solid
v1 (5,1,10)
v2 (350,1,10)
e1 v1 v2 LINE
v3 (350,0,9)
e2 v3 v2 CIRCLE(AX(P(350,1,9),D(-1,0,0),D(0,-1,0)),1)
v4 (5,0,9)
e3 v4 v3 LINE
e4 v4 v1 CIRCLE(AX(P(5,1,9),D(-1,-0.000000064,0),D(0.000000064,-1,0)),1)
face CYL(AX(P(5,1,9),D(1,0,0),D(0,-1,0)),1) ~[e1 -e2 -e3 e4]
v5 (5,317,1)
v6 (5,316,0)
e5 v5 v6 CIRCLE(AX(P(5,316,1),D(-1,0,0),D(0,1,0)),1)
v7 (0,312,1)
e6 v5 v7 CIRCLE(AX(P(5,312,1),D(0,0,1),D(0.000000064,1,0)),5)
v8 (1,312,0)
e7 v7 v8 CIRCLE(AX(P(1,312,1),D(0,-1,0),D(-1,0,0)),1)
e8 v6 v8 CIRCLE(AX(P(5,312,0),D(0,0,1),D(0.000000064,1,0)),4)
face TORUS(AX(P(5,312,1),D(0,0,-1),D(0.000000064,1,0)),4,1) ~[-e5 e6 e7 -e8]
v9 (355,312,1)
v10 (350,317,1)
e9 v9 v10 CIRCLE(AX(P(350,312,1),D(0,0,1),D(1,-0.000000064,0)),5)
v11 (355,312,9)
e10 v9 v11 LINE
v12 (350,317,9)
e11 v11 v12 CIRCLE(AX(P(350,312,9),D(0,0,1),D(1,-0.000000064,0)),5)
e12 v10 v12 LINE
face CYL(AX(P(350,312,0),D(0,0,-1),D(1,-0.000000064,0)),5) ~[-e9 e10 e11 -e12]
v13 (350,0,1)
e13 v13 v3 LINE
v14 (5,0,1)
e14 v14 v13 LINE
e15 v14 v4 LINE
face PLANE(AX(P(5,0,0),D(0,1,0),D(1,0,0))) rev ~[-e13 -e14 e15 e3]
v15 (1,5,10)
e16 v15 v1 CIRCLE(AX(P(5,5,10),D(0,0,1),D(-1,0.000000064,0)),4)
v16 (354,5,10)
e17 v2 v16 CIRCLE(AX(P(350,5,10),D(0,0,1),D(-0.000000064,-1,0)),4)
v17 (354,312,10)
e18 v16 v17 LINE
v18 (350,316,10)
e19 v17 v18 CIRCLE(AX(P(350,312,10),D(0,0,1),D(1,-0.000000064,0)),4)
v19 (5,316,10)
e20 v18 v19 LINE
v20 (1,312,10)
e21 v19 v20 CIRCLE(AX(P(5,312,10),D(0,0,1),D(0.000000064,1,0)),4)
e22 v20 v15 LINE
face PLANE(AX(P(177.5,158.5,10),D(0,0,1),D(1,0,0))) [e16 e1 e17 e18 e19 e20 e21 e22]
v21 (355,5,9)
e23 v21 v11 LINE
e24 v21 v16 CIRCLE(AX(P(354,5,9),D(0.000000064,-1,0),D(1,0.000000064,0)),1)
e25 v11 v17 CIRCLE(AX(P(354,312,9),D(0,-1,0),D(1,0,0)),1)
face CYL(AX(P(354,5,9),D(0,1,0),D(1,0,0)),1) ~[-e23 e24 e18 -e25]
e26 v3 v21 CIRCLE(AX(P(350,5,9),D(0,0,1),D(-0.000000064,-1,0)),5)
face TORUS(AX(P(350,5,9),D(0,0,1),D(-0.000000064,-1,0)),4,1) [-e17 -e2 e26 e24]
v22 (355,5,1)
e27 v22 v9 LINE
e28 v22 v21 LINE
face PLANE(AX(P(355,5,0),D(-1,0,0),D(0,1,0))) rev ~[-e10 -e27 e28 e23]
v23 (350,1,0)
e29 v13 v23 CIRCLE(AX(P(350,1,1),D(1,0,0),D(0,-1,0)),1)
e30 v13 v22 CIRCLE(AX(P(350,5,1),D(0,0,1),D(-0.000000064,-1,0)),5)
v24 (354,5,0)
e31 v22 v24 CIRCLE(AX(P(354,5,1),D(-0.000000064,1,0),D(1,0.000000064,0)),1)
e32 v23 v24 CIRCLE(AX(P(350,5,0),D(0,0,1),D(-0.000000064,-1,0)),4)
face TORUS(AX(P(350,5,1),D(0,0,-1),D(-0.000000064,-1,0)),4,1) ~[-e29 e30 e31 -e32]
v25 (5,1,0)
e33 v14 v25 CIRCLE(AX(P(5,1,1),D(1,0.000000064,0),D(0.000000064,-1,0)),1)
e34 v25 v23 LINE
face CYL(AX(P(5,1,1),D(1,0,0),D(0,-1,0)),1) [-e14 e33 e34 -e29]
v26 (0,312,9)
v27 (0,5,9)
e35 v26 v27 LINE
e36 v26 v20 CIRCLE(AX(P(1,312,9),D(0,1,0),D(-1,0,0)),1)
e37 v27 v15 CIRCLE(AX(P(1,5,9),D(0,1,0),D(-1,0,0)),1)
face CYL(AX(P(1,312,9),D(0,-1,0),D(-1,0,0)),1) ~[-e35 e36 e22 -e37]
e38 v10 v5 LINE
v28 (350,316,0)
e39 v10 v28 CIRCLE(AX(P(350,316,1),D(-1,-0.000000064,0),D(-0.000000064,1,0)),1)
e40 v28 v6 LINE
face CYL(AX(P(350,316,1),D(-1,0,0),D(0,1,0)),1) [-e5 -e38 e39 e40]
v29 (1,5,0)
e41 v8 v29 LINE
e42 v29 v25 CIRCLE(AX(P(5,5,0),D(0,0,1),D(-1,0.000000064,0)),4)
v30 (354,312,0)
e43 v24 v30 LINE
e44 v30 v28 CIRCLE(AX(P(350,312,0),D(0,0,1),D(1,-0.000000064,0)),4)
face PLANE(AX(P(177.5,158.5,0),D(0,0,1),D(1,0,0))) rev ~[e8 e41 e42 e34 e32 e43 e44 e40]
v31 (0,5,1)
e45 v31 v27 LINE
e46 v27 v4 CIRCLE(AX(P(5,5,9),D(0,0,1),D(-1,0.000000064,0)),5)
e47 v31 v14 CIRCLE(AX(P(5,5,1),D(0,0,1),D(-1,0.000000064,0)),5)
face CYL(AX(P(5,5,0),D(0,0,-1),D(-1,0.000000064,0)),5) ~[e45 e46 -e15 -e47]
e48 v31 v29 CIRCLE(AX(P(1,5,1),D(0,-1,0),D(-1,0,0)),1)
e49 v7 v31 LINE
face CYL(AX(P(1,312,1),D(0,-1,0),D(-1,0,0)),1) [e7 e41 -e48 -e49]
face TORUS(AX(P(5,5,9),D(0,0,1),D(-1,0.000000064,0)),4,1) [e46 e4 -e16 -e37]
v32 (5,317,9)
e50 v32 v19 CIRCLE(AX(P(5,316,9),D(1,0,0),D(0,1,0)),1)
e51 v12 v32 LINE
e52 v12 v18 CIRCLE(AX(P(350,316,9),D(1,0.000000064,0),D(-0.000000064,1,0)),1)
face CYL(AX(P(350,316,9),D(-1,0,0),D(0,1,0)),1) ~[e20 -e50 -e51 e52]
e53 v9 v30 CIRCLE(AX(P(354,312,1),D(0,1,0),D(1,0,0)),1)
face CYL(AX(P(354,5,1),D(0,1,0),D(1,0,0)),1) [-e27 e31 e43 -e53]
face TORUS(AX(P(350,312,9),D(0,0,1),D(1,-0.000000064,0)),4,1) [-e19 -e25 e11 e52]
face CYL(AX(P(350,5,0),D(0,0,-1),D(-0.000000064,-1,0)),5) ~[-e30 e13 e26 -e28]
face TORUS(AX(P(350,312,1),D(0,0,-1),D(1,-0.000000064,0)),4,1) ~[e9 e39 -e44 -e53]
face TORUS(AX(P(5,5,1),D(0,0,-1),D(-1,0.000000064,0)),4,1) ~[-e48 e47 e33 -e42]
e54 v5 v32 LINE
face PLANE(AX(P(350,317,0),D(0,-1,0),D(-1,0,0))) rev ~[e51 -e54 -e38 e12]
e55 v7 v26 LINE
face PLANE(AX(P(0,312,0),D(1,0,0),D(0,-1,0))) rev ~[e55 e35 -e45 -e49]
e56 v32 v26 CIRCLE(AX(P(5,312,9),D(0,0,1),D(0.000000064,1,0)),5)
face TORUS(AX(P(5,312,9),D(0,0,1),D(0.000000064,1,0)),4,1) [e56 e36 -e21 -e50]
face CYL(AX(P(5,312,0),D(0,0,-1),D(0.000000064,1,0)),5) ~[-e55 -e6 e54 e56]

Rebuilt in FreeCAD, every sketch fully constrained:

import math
import FreeCAD as App
import Part
import Sketcher
Q = App.Units.Quantity


def edges_at(feature, points):
    """Names of the edges that pass closest to the given points."""
    edges = feature.Shape.Edges
    near = lambda p: min(range(len(edges)), key=lambda i: edges[i].distToShape(Part.Vertex(*p))[0])
    return sorted({f"Edge{near(p) + 1}" for p in points})

doc = App.newDocument("Part")
params = doc.addObject("Spreadsheet::Sheet", "Params")
for row, (alias, value) in enumerate([
    ("sketch1_radius", "5 mm"),
    ("sketch1_width", "345 mm"),
    ("sketch1_height", "307 mm"),
    ("pad1_length", "10 mm"),
    ("fillet_radius", "1 mm"),
], start=1):
    params.set(f"A{row}", alias)
    params.set(f"B{row}", "=" + value)
    params.setAlias(f"B{row}", alias)

body = doc.addObject("PartDesign::Body", "Body")

# Sketch on XY plane
sketch1 = body.newObject("Sketcher::SketchObject", "Sketch")
sketch1.AttachmentSupport = (doc.getObject("XY_Plane"), [""])
sketch1.MapMode = "FlatFace"
sketch1.addGeometry(Part.ArcOfCircle(Part.Circle(App.Vector(5, 5, 0), App.Vector(0, 0, 1), 5), math.radians(179.999996), math.radians(270.000004)), False)
sketch1.addGeometry(Part.LineSegment(App.Vector(5, 0, 0), App.Vector(350, 0, 0)), False)
sketch1.addGeometry(Part.ArcOfCircle(Part.Circle(App.Vector(350, 5, 0), App.Vector(0, 0, 1), 5), math.radians(-90.000004), math.radians(0.000004)), False)
sketch1.addGeometry(Part.LineSegment(App.Vector(355, 5, 0), App.Vector(355, 312, 0)), False)
sketch1.addGeometry(Part.ArcOfCircle(Part.Circle(App.Vector(350, 312, 0), App.Vector(0, 0, 1), 5), math.radians(-0.000004), math.radians(90.000004)), False)
sketch1.addGeometry(Part.LineSegment(App.Vector(350, 317, 0), App.Vector(5, 317, 0)), False)
sketch1.addGeometry(Part.ArcOfCircle(Part.Circle(App.Vector(5, 312, 0), App.Vector(0, 0, 1), 5), math.radians(89.999996), math.radians(180.000004)), False)
sketch1.addGeometry(Part.LineSegment(App.Vector(0, 312, 0), App.Vector(0, 5, 0)), False)
sketch1.addConstraint(Sketcher.Constraint("Tangent", 0, 2, 1, 1))
sketch1.addConstraint(Sketcher.Constraint("Tangent", 1, 2, 2, 1))
sketch1.addConstraint(Sketcher.Constraint("Tangent", 2, 2, 3, 1))
sketch1.addConstraint(Sketcher.Constraint("Tangent", 3, 2, 4, 1))
sketch1.addConstraint(Sketcher.Constraint("Tangent", 4, 2, 5, 1))
sketch1.addConstraint(Sketcher.Constraint("Tangent", 5, 2, 6, 1))
sketch1.addConstraint(Sketcher.Constraint("Tangent", 6, 2, 7, 1))
sketch1.addConstraint(Sketcher.Constraint("Tangent", 7, 2, 0, 1))
sketch1.addConstraint(Sketcher.Constraint("Horizontal", 1))
sketch1.addConstraint(Sketcher.Constraint("Vertical", 3))
sketch1.addConstraint(Sketcher.Constraint("Horizontal", 5))
sketch1.addConstraint(Sketcher.Constraint("Vertical", 7))
sketch1.addConstraint(Sketcher.Constraint("Equal", 0, 2))
sketch1.addConstraint(Sketcher.Constraint("Equal", 2, 4))
sketch1.addConstraint(Sketcher.Constraint("Equal", 4, 6))
sketch1.addConstraint(Sketcher.Constraint("PointOnObject", 0, 2, -1))
sketch1.addConstraint(Sketcher.Constraint("PointOnObject", 6, 2, -2))
sketch1.addConstraint(Sketcher.Constraint("Radius", 0, Q("5 mm")))
sketch1.addConstraint(Sketcher.Constraint("DistanceX", 1, 1, 1, 2, Q("345 mm")))
sketch1.addConstraint(Sketcher.Constraint("DistanceY", 3, 1, 3, 2, Q("307 mm")))
sketch1.setExpression("Constraints[17]", "Params.sketch1_radius")
sketch1.setExpression("Constraints[18]", "Params.sketch1_width")
sketch1.setExpression("Constraints[19]", "Params.sketch1_height")
pad1 = body.newObject("PartDesign::Pad", "Pad")
pad1.Profile = sketch1
pad1.setExpression("Length", "Params.pad1_length")
doc.recompute()

fillet = body.newObject("PartDesign::Fillet", "Fillet")
fillet.Base = (pad1, edges_at(pad1, [
    (0, 158.5, 10),
    (1.464, 1.464, 10),
    (177.5, 0, 10),
    (353.536, 1.464, 10),
    (355, 158.5, 10),
    (353.536, 315.536, 10),
    (177.5, 317, 10),
    (1.464, 315.536, 10),
    (0, 158.5, 0),
    (1.464, 1.464, 0),
    (177.5, 0, 0),
    (353.536, 1.464, 0),
    (355, 158.5, 0),
    (353.536, 315.536, 0),
    (177.5, 317, 0),
    (1.464, 315.536, 0),
]))
fillet.setExpression("Radius", "Params.fillet_radius")

doc.recompute()
